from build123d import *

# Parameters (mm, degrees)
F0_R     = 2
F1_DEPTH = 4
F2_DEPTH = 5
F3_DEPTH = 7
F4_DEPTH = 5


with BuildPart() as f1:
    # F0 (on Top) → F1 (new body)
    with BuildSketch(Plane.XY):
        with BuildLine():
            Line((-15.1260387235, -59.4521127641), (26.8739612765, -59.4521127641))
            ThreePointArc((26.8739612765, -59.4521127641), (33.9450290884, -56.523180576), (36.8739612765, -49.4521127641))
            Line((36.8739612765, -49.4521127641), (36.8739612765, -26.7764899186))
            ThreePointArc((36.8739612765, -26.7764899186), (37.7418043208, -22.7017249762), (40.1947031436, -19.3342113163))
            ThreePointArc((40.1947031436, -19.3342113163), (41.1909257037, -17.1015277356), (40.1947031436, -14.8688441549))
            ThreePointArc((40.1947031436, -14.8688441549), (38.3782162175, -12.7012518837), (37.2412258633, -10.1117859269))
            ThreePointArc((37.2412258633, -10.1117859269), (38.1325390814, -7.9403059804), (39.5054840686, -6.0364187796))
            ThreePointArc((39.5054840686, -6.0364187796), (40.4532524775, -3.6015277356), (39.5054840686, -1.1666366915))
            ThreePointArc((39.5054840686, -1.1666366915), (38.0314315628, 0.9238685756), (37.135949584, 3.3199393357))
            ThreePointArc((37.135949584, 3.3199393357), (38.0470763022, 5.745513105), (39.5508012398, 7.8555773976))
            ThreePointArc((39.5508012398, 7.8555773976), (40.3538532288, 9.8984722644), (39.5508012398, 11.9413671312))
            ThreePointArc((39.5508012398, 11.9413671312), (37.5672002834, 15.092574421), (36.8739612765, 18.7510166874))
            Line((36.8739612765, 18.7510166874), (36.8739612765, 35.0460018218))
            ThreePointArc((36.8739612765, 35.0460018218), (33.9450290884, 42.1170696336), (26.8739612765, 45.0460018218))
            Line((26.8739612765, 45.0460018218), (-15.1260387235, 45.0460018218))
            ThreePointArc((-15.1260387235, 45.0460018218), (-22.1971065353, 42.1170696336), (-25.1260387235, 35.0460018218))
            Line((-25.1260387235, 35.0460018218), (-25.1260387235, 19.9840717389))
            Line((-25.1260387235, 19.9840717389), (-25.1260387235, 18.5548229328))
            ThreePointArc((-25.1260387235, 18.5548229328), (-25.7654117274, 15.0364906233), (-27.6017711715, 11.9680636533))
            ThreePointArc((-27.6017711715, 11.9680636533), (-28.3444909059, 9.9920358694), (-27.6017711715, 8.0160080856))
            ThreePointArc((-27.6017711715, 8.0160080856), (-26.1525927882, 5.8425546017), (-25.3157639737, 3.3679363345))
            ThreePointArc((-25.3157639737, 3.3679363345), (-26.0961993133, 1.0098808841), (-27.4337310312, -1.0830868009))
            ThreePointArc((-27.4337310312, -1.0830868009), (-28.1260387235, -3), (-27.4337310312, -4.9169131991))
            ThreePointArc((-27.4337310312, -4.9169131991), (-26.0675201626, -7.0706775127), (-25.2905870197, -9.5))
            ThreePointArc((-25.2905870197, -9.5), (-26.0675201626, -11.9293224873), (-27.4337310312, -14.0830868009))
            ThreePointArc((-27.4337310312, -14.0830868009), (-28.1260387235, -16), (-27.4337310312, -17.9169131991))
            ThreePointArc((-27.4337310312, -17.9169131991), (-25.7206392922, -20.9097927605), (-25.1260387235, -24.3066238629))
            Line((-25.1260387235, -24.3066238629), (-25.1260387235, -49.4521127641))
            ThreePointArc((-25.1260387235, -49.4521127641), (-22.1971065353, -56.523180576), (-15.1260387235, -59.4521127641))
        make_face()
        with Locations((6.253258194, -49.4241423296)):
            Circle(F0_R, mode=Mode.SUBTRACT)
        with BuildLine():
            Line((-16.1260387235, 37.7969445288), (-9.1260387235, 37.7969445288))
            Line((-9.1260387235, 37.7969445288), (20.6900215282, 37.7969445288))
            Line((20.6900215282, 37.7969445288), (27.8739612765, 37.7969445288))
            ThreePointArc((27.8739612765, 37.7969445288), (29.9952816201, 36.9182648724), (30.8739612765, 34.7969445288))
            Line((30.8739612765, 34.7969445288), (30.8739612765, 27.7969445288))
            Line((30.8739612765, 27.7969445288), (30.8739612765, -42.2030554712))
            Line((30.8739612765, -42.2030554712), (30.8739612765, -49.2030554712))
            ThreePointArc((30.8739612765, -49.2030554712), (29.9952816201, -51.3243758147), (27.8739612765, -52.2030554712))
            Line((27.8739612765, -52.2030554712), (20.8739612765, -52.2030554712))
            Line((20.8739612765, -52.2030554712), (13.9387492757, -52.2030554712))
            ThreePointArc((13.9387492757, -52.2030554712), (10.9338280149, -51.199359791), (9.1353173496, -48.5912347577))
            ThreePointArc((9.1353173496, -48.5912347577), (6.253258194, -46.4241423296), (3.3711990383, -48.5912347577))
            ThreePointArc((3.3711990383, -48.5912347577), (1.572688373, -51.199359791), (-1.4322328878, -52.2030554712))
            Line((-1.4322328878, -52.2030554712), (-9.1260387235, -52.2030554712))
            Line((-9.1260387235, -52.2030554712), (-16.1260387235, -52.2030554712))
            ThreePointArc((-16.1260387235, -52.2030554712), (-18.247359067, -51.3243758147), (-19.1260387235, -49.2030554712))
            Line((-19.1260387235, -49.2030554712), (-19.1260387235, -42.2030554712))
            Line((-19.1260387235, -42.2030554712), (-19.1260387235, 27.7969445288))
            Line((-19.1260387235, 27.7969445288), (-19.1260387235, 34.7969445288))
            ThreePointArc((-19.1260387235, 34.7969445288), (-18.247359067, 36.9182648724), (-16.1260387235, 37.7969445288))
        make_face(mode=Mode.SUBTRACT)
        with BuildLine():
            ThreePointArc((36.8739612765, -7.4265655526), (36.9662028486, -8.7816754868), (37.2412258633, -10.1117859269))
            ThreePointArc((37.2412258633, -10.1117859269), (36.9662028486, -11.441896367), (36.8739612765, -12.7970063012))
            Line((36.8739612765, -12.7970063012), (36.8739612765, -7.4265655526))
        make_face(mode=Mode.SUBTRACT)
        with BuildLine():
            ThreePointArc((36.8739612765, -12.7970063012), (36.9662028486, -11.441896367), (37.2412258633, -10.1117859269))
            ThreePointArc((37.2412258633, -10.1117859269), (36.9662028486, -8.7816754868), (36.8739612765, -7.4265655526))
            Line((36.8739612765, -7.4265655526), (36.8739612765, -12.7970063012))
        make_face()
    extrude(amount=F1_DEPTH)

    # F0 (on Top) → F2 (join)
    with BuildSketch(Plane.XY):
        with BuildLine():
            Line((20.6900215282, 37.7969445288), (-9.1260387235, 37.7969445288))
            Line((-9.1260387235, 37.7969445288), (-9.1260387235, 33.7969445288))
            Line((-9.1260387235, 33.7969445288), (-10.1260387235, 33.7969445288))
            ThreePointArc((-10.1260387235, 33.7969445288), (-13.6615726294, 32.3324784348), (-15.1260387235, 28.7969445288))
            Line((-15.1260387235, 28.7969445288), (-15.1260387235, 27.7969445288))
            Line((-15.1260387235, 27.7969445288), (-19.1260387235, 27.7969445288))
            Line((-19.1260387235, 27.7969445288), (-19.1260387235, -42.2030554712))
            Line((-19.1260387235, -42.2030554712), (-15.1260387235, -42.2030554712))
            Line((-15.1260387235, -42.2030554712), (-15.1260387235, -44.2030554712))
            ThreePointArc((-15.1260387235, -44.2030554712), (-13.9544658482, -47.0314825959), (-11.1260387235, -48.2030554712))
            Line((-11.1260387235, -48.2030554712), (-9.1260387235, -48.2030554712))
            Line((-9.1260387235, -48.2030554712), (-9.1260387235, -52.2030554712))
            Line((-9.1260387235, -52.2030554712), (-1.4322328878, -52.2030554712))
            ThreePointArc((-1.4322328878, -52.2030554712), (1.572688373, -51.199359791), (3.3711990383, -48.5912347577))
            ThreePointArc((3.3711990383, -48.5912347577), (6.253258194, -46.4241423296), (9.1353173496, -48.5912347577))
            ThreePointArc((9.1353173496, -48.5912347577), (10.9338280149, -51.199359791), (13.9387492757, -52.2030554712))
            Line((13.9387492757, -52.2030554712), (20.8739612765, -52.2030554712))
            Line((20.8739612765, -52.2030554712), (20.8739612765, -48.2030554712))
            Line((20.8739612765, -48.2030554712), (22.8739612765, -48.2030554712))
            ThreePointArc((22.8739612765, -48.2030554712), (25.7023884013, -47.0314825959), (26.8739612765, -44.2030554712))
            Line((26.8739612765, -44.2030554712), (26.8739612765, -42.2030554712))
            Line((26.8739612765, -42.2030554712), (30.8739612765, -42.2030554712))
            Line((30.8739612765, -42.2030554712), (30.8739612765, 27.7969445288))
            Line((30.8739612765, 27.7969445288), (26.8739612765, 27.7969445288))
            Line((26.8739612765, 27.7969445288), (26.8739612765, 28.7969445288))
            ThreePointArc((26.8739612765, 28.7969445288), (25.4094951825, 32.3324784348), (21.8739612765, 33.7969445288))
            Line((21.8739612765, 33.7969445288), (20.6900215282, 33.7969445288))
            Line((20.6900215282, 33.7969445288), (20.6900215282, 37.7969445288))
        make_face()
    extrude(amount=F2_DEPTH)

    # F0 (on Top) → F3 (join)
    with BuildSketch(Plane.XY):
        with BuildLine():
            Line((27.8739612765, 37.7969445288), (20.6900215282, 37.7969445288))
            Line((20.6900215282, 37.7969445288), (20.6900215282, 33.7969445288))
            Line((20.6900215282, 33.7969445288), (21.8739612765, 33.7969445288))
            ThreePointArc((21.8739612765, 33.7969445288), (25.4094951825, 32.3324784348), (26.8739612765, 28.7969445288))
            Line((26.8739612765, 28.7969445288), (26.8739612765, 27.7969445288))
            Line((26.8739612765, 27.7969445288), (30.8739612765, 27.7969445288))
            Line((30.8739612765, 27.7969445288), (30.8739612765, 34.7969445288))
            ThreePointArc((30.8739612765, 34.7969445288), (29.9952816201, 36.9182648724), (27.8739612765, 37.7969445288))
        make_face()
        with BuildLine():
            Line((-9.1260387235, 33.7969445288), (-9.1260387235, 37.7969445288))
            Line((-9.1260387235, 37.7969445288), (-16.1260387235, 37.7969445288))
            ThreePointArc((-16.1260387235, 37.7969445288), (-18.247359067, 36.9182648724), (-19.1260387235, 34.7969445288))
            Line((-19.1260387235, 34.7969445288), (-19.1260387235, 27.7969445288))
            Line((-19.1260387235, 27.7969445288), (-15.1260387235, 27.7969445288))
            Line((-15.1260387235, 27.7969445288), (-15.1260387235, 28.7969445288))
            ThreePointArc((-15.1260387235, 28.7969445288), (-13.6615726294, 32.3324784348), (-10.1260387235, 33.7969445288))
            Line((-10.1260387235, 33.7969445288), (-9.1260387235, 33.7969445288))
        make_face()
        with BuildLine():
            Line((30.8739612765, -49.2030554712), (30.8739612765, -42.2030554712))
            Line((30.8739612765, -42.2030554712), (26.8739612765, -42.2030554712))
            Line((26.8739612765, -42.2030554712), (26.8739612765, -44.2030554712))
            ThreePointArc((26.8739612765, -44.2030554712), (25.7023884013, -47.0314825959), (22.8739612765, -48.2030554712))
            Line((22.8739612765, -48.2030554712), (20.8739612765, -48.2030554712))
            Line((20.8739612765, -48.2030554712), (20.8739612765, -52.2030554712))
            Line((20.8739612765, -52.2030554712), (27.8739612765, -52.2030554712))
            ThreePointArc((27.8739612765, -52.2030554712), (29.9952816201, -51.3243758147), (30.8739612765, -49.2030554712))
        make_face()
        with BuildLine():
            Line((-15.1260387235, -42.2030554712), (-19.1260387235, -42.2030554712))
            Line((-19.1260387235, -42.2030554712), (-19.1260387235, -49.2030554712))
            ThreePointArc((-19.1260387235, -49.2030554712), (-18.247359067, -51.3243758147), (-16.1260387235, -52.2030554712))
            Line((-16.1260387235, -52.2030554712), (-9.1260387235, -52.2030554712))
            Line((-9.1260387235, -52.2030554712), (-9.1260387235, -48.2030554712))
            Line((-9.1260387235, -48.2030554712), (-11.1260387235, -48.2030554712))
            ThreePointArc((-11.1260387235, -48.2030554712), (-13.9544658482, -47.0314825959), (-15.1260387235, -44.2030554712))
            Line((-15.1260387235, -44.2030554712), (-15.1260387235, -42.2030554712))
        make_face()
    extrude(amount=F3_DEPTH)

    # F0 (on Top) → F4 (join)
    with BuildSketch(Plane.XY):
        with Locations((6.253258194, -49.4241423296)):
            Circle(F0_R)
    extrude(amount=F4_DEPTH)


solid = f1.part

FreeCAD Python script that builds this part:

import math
import FreeCAD as App
import Part
import Sketcher
from FreeCAD import Vector
Q = App.Units.Quantity

doc = App.newDocument("Part")
body = doc.addObject("PartDesign::Body", "Body")

# Sketch on XY plane
sketch1 = doc.addObject("Sketcher::SketchObject", "Sketch")
body.addObject(sketch1)
sketch1.AttachmentSupport = (doc.XY_Plane, [""])
sketch1.MapMode = "FlatFace"
sketch1.addGeometry([
    Part.LineSegment(Vector(-25.1, -24.3, 0), Vector(-25.1, -49.5, 0)),  # 0
    Part.ArcOfCircle(Part.Circle(Vector(-15.1, -49.5, 0), Vector(0, 0, 1), 10), math.radians(180), math.radians(270)),  # 1
    Part.LineSegment(Vector(-15.1, -59.5, 0), Vector(26.9, -59.5, 0)),  # 2
    Part.ArcOfCircle(Part.Circle(Vector(26.9, -49.5, 0), Vector(0, 0, 1), 10), math.radians(-90), math.radians(0)),  # 3
    Part.LineSegment(Vector(36.9, -49.5, 0), Vector(36.9, -26.8, 0)),  # 4
    Part.ArcOfCircle(Part.Circle(Vector(46.9, -26.8, 0), Vector(0, 0, 1), 10), math.radians(132), math.radians(180)),  # 5
    Part.ArcOfCircle(Part.Circle(Vector(38.2, -17.1, 0), Vector(0, 0, 1), 3), math.radians(-48), math.radians(48)),  # 6
    Part.ArcOfCircle(Part.Circle(Vector(46.9, -7.4, 0), Vector(0, 0, 1), 10), math.radians(-164), math.radians(-132)),  # 7
    Part.ArcOfCircle(Part.Circle(Vector(46.9, -12.8, 0), Vector(0, 0, 1), 10), math.radians(137), math.radians(164)),  # 8
    Part.ArcOfCircle(Part.Circle(Vector(36.9, -3.6, 0), Vector(0, 0, 1), 3.6), math.radians(-43), math.radians(43)),  # 9
    Part.ArcOfCircle(Part.Circle(Vector(46.9, 5.6, 0), Vector(0, 0, 1), 10), math.radians(-167), math.radians(-137)),  # 10
    Part.ArcOfCircle(Part.Circle(Vector(46.9, 1, 0), Vector(0, 0, 1), 10), math.radians(137), math.radians(167)),  # 11
    Part.ArcOfCircle(Part.Circle(Vector(37.4, 9.9, 0), Vector(0, 0, 1), 3), math.radians(-43), math.radians(43)),  # 12
    Part.ArcOfCircle(Part.Circle(Vector(46.9, 18.8, 0), Vector(0, 0, 1), 10), math.radians(-180), math.radians(-137)),  # 13
    Part.LineSegment(Vector(36.9, 18.8, 0), Vector(36.9, 35, 0)),  # 14
    Part.ArcOfCircle(Part.Circle(Vector(26.9, 35, 0), Vector(0, 0, 1), 10), math.radians(0), math.radians(90)),  # 15
    Part.LineSegment(Vector(26.9, 45, 0), Vector(-15.1, 45, 0)),  # 16
    Part.ArcOfCircle(Part.Circle(Vector(-15.1, 35, 0), Vector(0, 0, 1), 10), math.radians(90), math.radians(180)),  # 17
    Part.LineSegment(Vector(-25.1, 35, 0), Vector(-25.1, 18.6, 0)),  # 18
    Part.ArcOfCircle(Part.Circle(Vector(-35.1, 18.6, 0), Vector(0, 0, 1), 10), math.radians(-41), math.radians(0)),  # 19
    Part.ArcOfCircle(Part.Circle(Vector(-25.3, 10, 0), Vector(0, 0, 1), 3), math.radians(139), math.radians(221)),  # 20
    Part.ArcOfCircle(Part.Circle(Vector(-35.1, 1.4, 0), Vector(0, 0, 1), 10), math.radians(11), math.radians(41)),  # 21
    Part.ArcOfCircle(Part.Circle(Vector(-35.1, 5.3, 0), Vector(0, 0, 1), 10), math.radians(-40), math.radians(-11)),  # 22
    Part.ArcOfCircle(Part.Circle(Vector(-25.1, -3, 0), Vector(0, 0, 1), 3), math.radians(140), math.radians(220)),  # 23
    Part.ArcOfCircle(Part.Circle(Vector(-35.1, -11.3, 0), Vector(0, 0, 1), 10), math.radians(10), math.radians(40)),  # 24
    Part.ArcOfCircle(Part.Circle(Vector(-35.1, -7.7, 0), Vector(0, 0, 1), 10), math.radians(-40), math.radians(-10)),  # 25
    Part.ArcOfCircle(Part.Circle(Vector(-25.1, -16, 0), Vector(0, 0, 1), 3), math.radians(140), math.radians(220)),  # 26
    Part.ArcOfCircle(Part.Circle(Vector(-35.1, -24.3, 0), Vector(0, 0, 1), 10), math.radians(0), math.radians(40)),  # 27
    Part.Circle(Vector(6.3, -49.4, 0), Vector(0, 0, 1), 2),  # 28
    Part.ArcOfCircle(Part.Circle(Vector(-16.1, 34.8, 0), Vector(0, 0, 1), 3), math.radians(90), math.radians(180)),  # 29
    Part.LineSegment(Vector(-16.1, 37.8, 0), Vector(27.9, 37.8, 0)),  # 30
    Part.ArcOfCircle(Part.Circle(Vector(27.9, 34.8, 0), Vector(0, 0, 1), 3), math.radians(0), math.radians(90)),  # 31
    Part.LineSegment(Vector(30.9, 34.8, 0), Vector(30.9, -49.2, 0)),  # 32
    Part.ArcOfCircle(Part.Circle(Vector(27.9, -49.2, 0), Vector(0, 0, 1), 3), math.radians(-90), math.radians(0)),  # 33
    Part.LineSegment(Vector(27.9, -52.2, 0), Vector(13.9, -52.2, 0)),  # 34
    Part.ArcOfCircle(Part.Circle(Vector(13.9, -47.2, 0), Vector(0, 0, 1), 5), math.radians(-164), math.radians(-90)),  # 35
    Part.ArcOfCircle(Part.Circle(Vector(6.3, -49.4, 0), Vector(0, 0, 1), 3), math.radians(16), math.radians(164)),  # 36
    Part.ArcOfCircle(Part.Circle(Vector(-1.4, -47.2, 0), Vector(0, 0, 1), 5), math.radians(-90), math.radians(-16)),  # 37
    Part.LineSegment(Vector(-1.4, -52.2, 0), Vector(-16.1, -52.2, 0)),  # 38
    Part.ArcOfCircle(Part.Circle(Vector(-16.1, -49.2, 0), Vector(0, 0, 1), 3), math.radians(180), math.radians(270)),  # 39
    Part.LineSegment(Vector(-19.1, -49.2, 0), Vector(-19.1, 34.8, 0)),  # 40
], False)
sketch1.addConstraint([
    Sketcher.Constraint("Tangent", 0, 2, 1, 1),
    Sketcher.Constraint("Tangent", 1, 2, 2, 1),
    Sketcher.Constraint("Tangent", 2, 2, 3, 1),
    Sketcher.Constraint("Tangent", 3, 2, 4, 1),
    Sketcher.Constraint("Tangent", 4, 2, 5, 2),
    Sketcher.Constraint("Tangent", 5, 1, 6, 1),
    Sketcher.Constraint("Tangent", 6, 2, 7, 2),
    Sketcher.Constraint("Coincident", 7, 1, 8, 2),
    Sketcher.Constraint("Tangent", 8, 1, 9, 1),
    Sketcher.Constraint("Tangent", 9, 2, 10, 2),
    Sketcher.Constraint("Coincident", 10, 1, 11, 2),
    Sketcher.Constraint("Tangent", 11, 1, 12, 1),
    Sketcher.Constraint("Tangent", 12, 2, 13, 2),
    Sketcher.Constraint("Tangent", 13, 1, 14, 1),
    Sketcher.Constraint("Tangent", 14, 2, 15, 1),
    Sketcher.Constraint("Tangent", 15, 2, 16, 1),
    Sketcher.Constraint("Tangent", 16, 2, 17, 1),
    Sketcher.Constraint("Tangent", 17, 2, 18, 1),
    Sketcher.Constraint("Tangent", 18, 2, 19, 2),
    Sketcher.Constraint("Tangent", 19, 1, 20, 1),
    Sketcher.Constraint("Tangent", 20, 2, 21, 2),
    Sketcher.Constraint("Coincident", 21, 1, 22, 2),
    Sketcher.Constraint("Tangent", 22, 1, 23, 1),
    Sketcher.Constraint("Tangent", 23, 2, 24, 2),
    Sketcher.Constraint("Coincident", 24, 1, 25, 2),
    Sketcher.Constraint("Tangent", 25, 1, 26, 1),
    Sketcher.Constraint("Tangent", 26, 2, 27, 2),
    Sketcher.Constraint("Tangent", 27, 1, 0, 1),
    Sketcher.Constraint("Tangent", 29, 1, 30, 1),
    Sketcher.Constraint("Tangent", 30, 2, 31, 2),
    Sketcher.Constraint("Tangent", 31, 1, 32, 1),
    Sketcher.Constraint("Tangent", 32, 2, 33, 2),
    Sketcher.Constraint("Tangent", 33, 1, 34, 1),
    Sketcher.Constraint("Tangent", 34, 2, 35, 2),
    Sketcher.Constraint("Tangent", 35, 1, 36, 1),
    Sketcher.Constraint("Tangent", 36, 2, 37, 2),
    Sketcher.Constraint("Tangent", 37, 1, 38, 1),
    Sketcher.Constraint("Tangent", 38, 2, 39, 2),
    Sketcher.Constraint("Tangent", 39, 1, 40, 1),
    Sketcher.Constraint("Tangent", 40, 2, 29, 2),
    Sketcher.Constraint("Vertical", 0),
    Sketcher.Constraint("Horizontal", 2),
    Sketcher.Constraint("Vertical", 4),
    Sketcher.Constraint("Vertical", 14),
    Sketcher.Constraint("Horizontal", 16),
    Sketcher.Constraint("Vertical", 18),
    Sketcher.Constraint("Horizontal", 30),
    Sketcher.Constraint("Vertical", 32),
    Sketcher.Constraint("Horizontal", 34),
    Sketcher.Constraint("Horizontal", 38),
    Sketcher.Constraint("Vertical", 40),
    Sketcher.Constraint("Coincident", 36, 3, 28, 3),
    Sketcher.Constraint("Equal", 1, 3),
    Sketcher.Constraint("Equal", 3, 5),
    Sketcher.Constraint("Equal", 5, 7),
    Sketcher.Constraint("Equal", 7, 8),
    Sketcher.Constraint("Equal", 8, 10),
    Sketcher.Constraint("Equal", 10, 11),
    Sketcher.Constraint("Equal", 6, 12),
    Sketcher.Constraint("Equal", 11, 13),
    Sketcher.Constraint("Equal", 13, 15),
    Sketcher.Constraint("Equal", 15, 17),
    Sketcher.Constraint("Equal", 17, 19),
    Sketcher.Constraint("Equal", 12, 20),
    Sketcher.Constraint("Equal", 19, 21),
    Sketcher.Constraint("Equal", 21, 22),
    Sketcher.Constraint("Equal", 20, 23),
    Sketcher.Constraint("Equal", 22, 24),
    Sketcher.Constraint("Equal", 24, 25),
    Sketcher.Constraint("Equal", 23, 26),
    Sketcher.Constraint("Equal", 25, 27),
    Sketcher.Constraint("Equal", 26, 29),
    Sketcher.Constraint("Equal", 29, 31),
    Sketcher.Constraint("Equal", 31, 33),
    Sketcher.Constraint("Equal", 33, 36),
    Sketcher.Constraint("Equal", 35, 37),
    Sketcher.Constraint("Equal", 36, 39),
    Sketcher.Constraint("Horizontal", 35, 3, 37, 3),
    Sketcher.Constraint("Vertical", 5, 3, 7, 3),
    Sketcher.Constraint("Vertical", 7, 3, 8, 3),
    Sketcher.Constraint("Vertical", 8, 3, 10, 3),
    Sketcher.Constraint("Vertical", 10, 3, 11, 3),
    Sketcher.Constraint("Vertical", 11, 3, 13, 3),
    Sketcher.Constraint("Vertical", 1, 3, 17, 3),
    Sketcher.Constraint("Vertical", 19, 3, 21, 3),
    Sketcher.Constraint("Vertical", 21, 3, 22, 3),
    Sketcher.Constraint("Vertical", 22, 3, 24, 3),
    Sketcher.Constraint("Vertical", 24, 3, 25, 3),
    Sketcher.Constraint("Vertical", 23, 3, 26, 3),
    Sketcher.Constraint("Vertical", 26, 3, 0, 2),
    Sketcher.Constraint("Diameter", 28, Q("4 mm")),
    Sketcher.Constraint("Radius", 1, Q("10 mm")),
    Sketcher.Constraint("Radius", 6, Q("3 mm")),
    Sketcher.Constraint("Radius", 35, Q("5 mm")),
    Sketcher.Constraint("DistanceX", 2, 1, 2, 2, Q("42 mm")),
    Sketcher.Constraint("DistanceX", 30, 1, 30, 2, Q("44 mm")),
    Sketcher.Constraint("DistanceY", 32, 2, 32, 1, Q("84 mm")),
    Sketcher.Constraint("DistanceY", 23, 3, -1, 1, Q("3 mm")),
    Sketcher.Constraint("DistanceY", 26, 3, -1, 1, Q("16 mm")),
    Sketcher.Constraint("DistanceY", -1, 1, 15, 3, Q("35.046002 mm")),
    Sketcher.Constraint("Radius", 9, Q("3.601597 mm")),
    Sketcher.Constraint("DistanceY", 0, 2, 0, 1, Q("25.145489 mm")),
    Sketcher.Constraint("DistanceY", 18, 2, 18, 1, Q("16.491179 mm")),
    Sketcher.Constraint("DistanceX", -1, 1, 11, 1, Q("39.550801 mm")),
    Sketcher.Constraint("DistanceX", -1, 1, 36, 2, Q("3.371199 mm")),
    Sketcher.Constraint("DistanceX", 34, 2, 34, 1, Q("13.935212 mm")),
    Sketcher.Constraint("DistanceX", 38, 2, 38, 1, Q("14.693806 mm")),
    Sketcher.Constraint("DistanceY", 4, 1, 4, 2, Q("22.675623 mm")),
    Sketcher.Constraint("DistanceY", 14, 1, 14, 2, Q("16.294985 mm")),
    Sketcher.Constraint("DistanceX", 1, 3, -1, 1, Q("15.126039 mm")),
    Sketcher.Constraint("DistanceY", -1, 1, 10, 3, Q("5.593951 mm")),
    Sketcher.Constraint("DistanceX", 20, 3, -1, 1, Q("25.344491 mm")),
    Sketcher.Constraint("DistanceY", 5, 1, -1, 1, Q("19.334211 mm")),
    Sketcher.Constraint("DistanceY", 8, 1, -1, 1, Q("6.036419 mm")),
    Sketcher.Constraint("DistanceY", 28, 3, -1, 1, Q("49.424142 mm")),
])
pad1 = doc.addObject("PartDesign::Pad", "Pad")
body.addObject(pad1)
pad1.Profile = sketch1
pad1.Length = 4

# Sketch on XY plane
sketch2 = doc.addObject("Sketcher::SketchObject", "Sketch001")
body.addObject(sketch2)
sketch2.AttachmentSupport = (doc.XY_Plane, [""])
sketch2.MapMode = "FlatFace"
sketch2.addGeometry([
    Part.LineSegment(Vector(20.7, 37.8, 0), Vector(-9.1, 37.8, 0)),  # 0
    Part.LineSegment(Vector(-9.1, 37.8, 0), Vector(-9.1, 33.8, 0)),  # 1
    Part.LineSegment(Vector(-9.1, 33.8, 0), Vector(-10.1, 33.8, 0)),  # 2
    Part.ArcOfCircle(Part.Circle(Vector(-10.1, 28.8, 0), Vector(0, 0, 1), 5), math.radians(90), math.radians(180)),  # 3
    Part.LineSegment(Vector(-15.1, 28.8, 0), Vector(-15.1, 27.8, 0)),  # 4
    Part.LineSegment(Vector(-15.1, 27.8, 0), Vector(-19.1, 27.8, 0)),  # 5
    Part.LineSegment(Vector(-19.1, 27.8, 0), Vector(-19.1, -42.2, 0)),  # 6
    Part.LineSegment(Vector(-19.1, -42.2, 0), Vector(-15.1, -42.2, 0)),  # 7
    Part.LineSegment(Vector(-15.1, -42.2, 0), Vector(-15.1, -44.2, 0)),  # 8
    Part.ArcOfCircle(Part.Circle(Vector(-11.1, -44.2, 0), Vector(0, 0, 1), 4), math.radians(180), math.radians(270)),  # 9
    Part.LineSegment(Vector(-11.1, -48.2, 0), Vector(-9.1, -48.2, 0)),  # 10
    Part.LineSegment(Vector(-9.1, -48.2, 0), Vector(-9.1, -52.2, 0)),  # 11
    Part.LineSegment(Vector(-9.1, -52.2, 0), Vector(-1.4, -52.2, 0)),  # 12
    Part.ArcOfCircle(Part.Circle(Vector(-1.4, -47.2, 0), Vector(0, 0, 1), 5), math.radians(-90), math.radians(-16)),  # 13
    Part.ArcOfCircle(Part.Circle(Vector(6.3, -49.4, 0), Vector(0, 0, 1), 3), math.radians(16), math.radians(164)),  # 14
    Part.ArcOfCircle(Part.Circle(Vector(13.9, -47.2, 0), Vector(0, 0, 1), 5), math.radians(-164), math.radians(-90)),  # 15
    Part.LineSegment(Vector(13.9, -52.2, 0), Vector(20.9, -52.2, 0)),  # 16
    Part.LineSegment(Vector(20.9, -52.2, 0), Vector(20.9, -48.2, 0)),  # 17
    Part.LineSegment(Vector(20.9, -48.2, 0), Vector(22.9, -48.2, 0)),  # 18
    Part.ArcOfCircle(Part.Circle(Vector(22.9, -44.2, 0), Vector(0, 0, 1), 4), math.radians(-90), math.radians(0)),  # 19
    Part.LineSegment(Vector(26.9, -44.2, 0), Vector(26.9, -42.2, 0)),  # 20
    Part.LineSegment(Vector(26.9, -42.2, 0), Vector(30.9, -42.2, 0)),  # 21
    Part.LineSegment(Vector(30.9, -42.2, 0), Vector(30.9, 27.8, 0)),  # 22
    Part.LineSegment(Vector(30.9, 27.8, 0), Vector(26.9, 27.8, 0)),  # 23
    Part.LineSegment(Vector(26.9, 27.8, 0), Vector(26.9, 28.8, 0)),  # 24
    Part.ArcOfCircle(Part.Circle(Vector(21.9, 28.8, 0), Vector(0, 0, 1), 5), math.radians(0), math.radians(90)),  # 25
    Part.LineSegment(Vector(21.9, 33.8, 0), Vector(20.7, 33.8, 0)),  # 26
    Part.LineSegment(Vector(20.7, 33.8, 0), Vector(20.7, 37.8, 0)),  # 27
], False)
sketch2.addConstraint([
    Sketcher.Constraint("Coincident", 0, 2, 1, 1),
    Sketcher.Constraint("Coincident", 1, 2, 2, 1),
    Sketcher.Constraint("Tangent", 2, 2, 3, 1),
    Sketcher.Constraint("Tangent", 3, 2, 4, 1),
    Sketcher.Constraint("Coincident", 4, 2, 5, 1),
    Sketcher.Constraint("Coincident", 5, 2, 6, 1),
    Sketcher.Constraint("Coincident", 6, 2, 7, 1),
    Sketcher.Constraint("Coincident", 7, 2, 8, 1),
    Sketcher.Constraint("Tangent", 8, 2, 9, 1),
    Sketcher.Constraint("Tangent", 9, 2, 10, 1),
    Sketcher.Constraint("Coincident", 10, 2, 11, 1),
    Sketcher.Constraint("Coincident", 11, 2, 12, 1),
    Sketcher.Constraint("Tangent", 12, 2, 13, 1),
    Sketcher.Constraint("Tangent", 13, 2, 14, 2),
    Sketcher.Constraint("Tangent", 14, 1, 15, 1),
    Sketcher.Constraint("Tangent", 15, 2, 16, 1),
    Sketcher.Constraint("Coincident", 16, 2, 17, 1),
    Sketcher.Constraint("Coincident", 17, 2, 18, 1),
    Sketcher.Constraint("Tangent", 18, 2, 19, 1),
    Sketcher.Constraint("Tangent", 19, 2, 20, 1),
    Sketcher.Constraint("Coincident", 20, 2, 21, 1),
    Sketcher.Constraint("Coincident", 21, 2, 22, 1),
    Sketcher.Constraint("Coincident", 22, 2, 23, 1),
    Sketcher.Constraint("Coincident", 23, 2, 24, 1),
    Sketcher.Constraint("Tangent", 24, 2, 25, 1),
    Sketcher.Constraint("Tangent", 25, 2, 26, 1),
    Sketcher.Constraint("Coincident", 26, 2, 27, 1),
    Sketcher.Constraint("Coincident", 27, 2, 0, 1),
    Sketcher.Constraint("Horizontal", 0),
    Sketcher.Constraint("Vertical", 1),
    Sketcher.Constraint("Horizontal", 2),
    Sketcher.Constraint("Vertical", 4),
    Sketcher.Constraint("Horizontal", 5),
    Sketcher.Constraint("Vertical", 6),
    Sketcher.Constraint("Horizontal", 7),
    Sketcher.Constraint("Vertical", 8),
    Sketcher.Constraint("Horizontal", 10),
    Sketcher.Constraint("Vertical", 11),
    Sketcher.Constraint("Horizontal", 12),
    Sketcher.Constraint("Horizontal", 16),
    Sketcher.Constraint("Vertical", 17),
    Sketcher.Constraint("Horizontal", 18),
    Sketcher.Constraint("Vertical", 20),
    Sketcher.Constraint("Horizontal", 21),
    Sketcher.Constraint("Vertical", 22),
    Sketcher.Constraint("Horizontal", 23),
    Sketcher.Constraint("Vertical", 24),
    Sketcher.Constraint("Horizontal", 26),
    Sketcher.Constraint("Vertical", 27),
    Sketcher.Constraint("Equal", 3, 13),
    Sketcher.Constraint("Equal", 13, 15),
    Sketcher.Constraint("Equal", 9, 19),
    Sketcher.Constraint("Equal", 15, 25),
    Sketcher.Constraint("Horizontal", 13, 3, 15, 3),
    Sketcher.Constraint("Horizontal", 9, 3, 19, 3),
    Sketcher.Constraint("Horizontal", 3, 3, 25, 3),
    Sketcher.Constraint("Horizontal", 7, 2, 20, 2),
    Sketcher.Constraint("Horizontal", 5, 2, 22, 2),
    Sketcher.Constraint("Vertical", 4, 2, 7, 2),
    Sketcher.Constraint("Vertical", 1, 2, 10, 2),
    Sketcher.Constraint("Vertical", 20, 2, 23, 2),
    Sketcher.Constraint("Equal", 10, 18),
    Sketcher.Constraint("Equal", 7, 21),
    Sketcher.Constraint("Equal", 23, 1),
    Sketcher.Constraint("Equal", 2, 4),
    Sketcher.Constraint("Equal", 18, 8),
    Sketcher.Constraint("Equal", 1, 11),
    Sketcher.Constraint("Radius", 3, Q("5 mm")),
    Sketcher.Constraint("Radius", 9, Q("4 mm")),
    Sketcher.Constraint("Radius", 14, Q("3 mm")),
    Sketcher.Constraint("DistanceX", 2, 2, 2, 1, Q("1 mm")),
    Sketcher.Constraint("DistanceX", 5, 2, 5, 1, Q("4 mm")),
    Sketcher.Constraint("DistanceY", 6, 2, 6, 1, Q("70 mm")),
    Sketcher.Constraint("DistanceX", 9, 3, 19, 3, Q("34 mm")),
    Sketcher.Constraint("DistanceX", 0, 2, 0, 1, Q("29.81606 mm")),
    Sketcher.Constraint("DistanceX", -1, 1, 13, 2, Q("3.371199 mm")),
    Sketcher.Constraint("DistanceX", 12, 1, 12, 2, Q("7.693806 mm")),
    Sketcher.Constraint("DistanceX", 16, 1, 16, 2, Q("6.935212 mm")),
    Sketcher.Constraint("DistanceY", -1, 1, 3, 3, Q("28.796945 mm")),
])
pad2 = doc.addObject("PartDesign::Pad", "Pad001")
body.addObject(pad2)
pad2.Profile = sketch2
pad2.Length = 5

# Sketch on XY plane
sketch3 = doc.addObject("Sketcher::SketchObject", "Sketch002")
body.addObject(sketch3)
sketch3.AttachmentSupport = (doc.XY_Plane, [""])
sketch3.MapMode = "FlatFace"
sketch3.addGeometry([
    Part.LineSegment(Vector(27.9, 37.8, 0), Vector(20.7, 37.8, 0)),  # 0
    Part.LineSegment(Vector(20.7, 37.8, 0), Vector(20.7, 33.8, 0)),  # 1
    Part.LineSegment(Vector(20.7, 33.8, 0), Vector(21.9, 33.8, 0)),  # 2
    Part.ArcOfCircle(Part.Circle(Vector(21.9, 28.8, 0), Vector(0, 0, 1), 5), math.radians(0), math.radians(90)),  # 3
    Part.LineSegment(Vector(26.9, 28.8, 0), Vector(26.9, 27.8, 0)),  # 4
    Part.LineSegment(Vector(26.9, 27.8, 0), Vector(30.9, 27.8, 0)),  # 5
    Part.LineSegment(Vector(30.9, 27.8, 0), Vector(30.9, 34.8, 0)),  # 6
    Part.ArcOfCircle(Part.Circle(Vector(27.9, 34.8, 0), Vector(0, 0, 1), 3), math.radians(0), math.radians(90)),  # 7
    Part.LineSegment(Vector(-9.1, 33.8, 0), Vector(-9.1, 37.8, 0)),  # 8
    Part.LineSegment(Vector(-9.1, 37.8, 0), Vector(-16.1, 37.8, 0)),  # 9
    Part.ArcOfCircle(Part.Circle(Vector(-16.1, 34.8, 0), Vector(0, 0, 1), 3), math.radians(90), math.radians(180)),  # 10
    Part.LineSegment(Vector(-19.1, 34.8, 0), Vector(-19.1, 27.8, 0)),  # 11
    Part.LineSegment(Vector(-19.1, 27.8, 0), Vector(-15.1, 27.8, 0)),  # 12
    Part.LineSegment(Vector(-15.1, 27.8, 0), Vector(-15.1, 28.8, 0)),  # 13
    Part.ArcOfCircle(Part.Circle(Vector(-10.1, 28.8, 0), Vector(0, 0, 1), 5), math.radians(90), math.radians(180)),  # 14
    Part.LineSegment(Vector(-10.1, 33.8, 0), Vector(-9.1, 33.8, 0)),  # 15
    Part.LineSegment(Vector(30.9, -49.2, 0), Vector(30.9, -42.2, 0)),  # 16
    Part.LineSegment(Vector(30.9, -42.2, 0), Vector(26.9, -42.2, 0)),  # 17
    Part.LineSegment(Vector(26.9, -42.2, 0), Vector(26.9, -44.2, 0)),  # 18
    Part.ArcOfCircle(Part.Circle(Vector(22.9, -44.2, 0), Vector(0, 0, 1), 4), math.radians(-90), math.radians(0)),  # 19
    Part.LineSegment(Vector(22.9, -48.2, 0), Vector(20.9, -48.2, 0)),  # 20
    Part.LineSegment(Vector(20.9, -48.2, 0), Vector(20.9, -52.2, 0)),  # 21
    Part.LineSegment(Vector(20.9, -52.2, 0), Vector(27.9, -52.2, 0)),  # 22
    Part.ArcOfCircle(Part.Circle(Vector(27.9, -49.2, 0), Vector(0, 0, 1), 3), math.radians(-90), math.radians(0)),  # 23
    Part.LineSegment(Vector(-15.1, -42.2, 0), Vector(-19.1, -42.2, 0)),  # 24
    Part.LineSegment(Vector(-19.1, -42.2, 0), Vector(-19.1, -49.2, 0)),  # 25
    Part.ArcOfCircle(Part.Circle(Vector(-16.1, -49.2, 0), Vector(0, 0, 1), 3), math.radians(180), math.radians(270)),  # 26
    Part.LineSegment(Vector(-16.1, -52.2, 0), Vector(-9.1, -52.2, 0)),  # 27
    Part.LineSegment(Vector(-9.1, -52.2, 0), Vector(-9.1, -48.2, 0)),  # 28
    Part.LineSegment(Vector(-9.1, -48.2, 0), Vector(-11.1, -48.2, 0)),  # 29
    Part.ArcOfCircle(Part.Circle(Vector(-11.1, -44.2, 0), Vector(0, 0, 1), 4), math.radians(180), math.radians(270)),  # 30
    Part.LineSegment(Vector(-15.1, -44.2, 0), Vector(-15.1, -42.2, 0)),  # 31
], False)
sketch3.addConstraint([
    Sketcher.Constraint("Coincident", 0, 2, 1, 1),
    Sketcher.Constraint("Coincident", 1, 2, 2, 1),
    Sketcher.Constraint("Tangent", 2, 2, 3, 2),
    Sketcher.Constraint("Tangent", 3, 1, 4, 1),
    Sketcher.Constraint("Coincident", 4, 2, 5, 1),
    Sketcher.Constraint("Coincident", 5, 2, 6, 1),
    Sketcher.Constraint("Tangent", 6, 2, 7, 1),
    Sketcher.Constraint("Tangent", 7, 2, 0, 1),
    Sketcher.Constraint("Coincident", 8, 2, 9, 1),
    Sketcher.Constraint("Tangent", 9, 2, 10, 1),
    Sketcher.Constraint("Tangent", 10, 2, 11, 1),
    Sketcher.Constraint("Coincident", 11, 2, 12, 1),
    Sketcher.Constraint("Coincident", 12, 2, 13, 1),
    Sketcher.Constraint("Tangent", 13, 2, 14, 2),
    Sketcher.Constraint("Tangent", 14, 1, 15, 1),
    Sketcher.Constraint("Coincident", 15, 2, 8, 1),
    Sketcher.Constraint("Coincident", 16, 2, 17, 1),
    Sketcher.Constraint("Coincident", 17, 2, 18, 1),
    Sketcher.Constraint("Tangent", 18, 2, 19, 2),
    Sketcher.Constraint("Tangent", 19, 1, 20, 1),
    Sketcher.Constraint("Coincident", 20, 2, 21, 1),
    Sketcher.Constraint("Coincident", 21, 2, 22, 1),
    Sketcher.Constraint("Tangent", 22, 2, 23, 1),
    Sketcher.Constraint("Tangent", 23, 2, 16, 1),
    Sketcher.Constraint("Coincident", 24, 2, 25, 1),
    Sketcher.Constraint("Tangent", 25, 2, 26, 1),
    Sketcher.Constraint("Tangent", 26, 2, 27, 1),
    Sketcher.Constraint("Coincident", 27, 2, 28, 1),
    Sketcher.Constraint("Coincident", 28, 2, 29, 1),
    Sketcher.Constraint("Tangent", 29, 2, 30, 2),
    Sketcher.Constraint("Tangent", 30, 1, 31, 1),
    Sketcher.Constraint("Coincident", 31, 2, 24, 1),
    Sketcher.Constraint("Horizontal", 0),
    Sketcher.Constraint("Vertical", 1),
    Sketcher.Constraint("Horizontal", 2),
    Sketcher.Constraint("Vertical", 4),
    Sketcher.Constraint("Horizontal", 5),
    Sketcher.Constraint("Vertical", 6),
    Sketcher.Constraint("Vertical", 8),
    Sketcher.Constraint("Horizontal", 9),
    Sketcher.Constraint("Vertical", 11),
    Sketcher.Constraint("Horizontal", 12),
    Sketcher.Constraint("Vertical", 13),
    Sketcher.Constraint("Horizontal", 15),
    Sketcher.Constraint("Vertical", 16),
    Sketcher.Constraint("Horizontal", 17),
    Sketcher.Constraint("Vertical", 18),
    Sketcher.Constraint("Horizontal", 20),
    Sketcher.Constraint("Vertical", 21),
    Sketcher.Constraint("Horizontal", 22),
    Sketcher.Constraint("Horizontal", 24),
    Sketcher.Constraint("Vertical", 25),
    Sketcher.Constraint("Horizontal", 27),
    Sketcher.Constraint("Vertical", 28),
    Sketcher.Constraint("Horizontal", 29),
    Sketcher.Constraint("Vertical", 31),
    Sketcher.Constraint("Equal", 7, 10),
    Sketcher.Constraint("Equal", 3, 14),
    Sketcher.Constraint("Equal", 10, 23),
    Sketcher.Constraint("Equal", 23, 26),
    Sketcher.Constraint("Equal", 19, 30),
    Sketcher.Constraint("Horizontal", 7, 3, 10, 3),
    Sketcher.Constraint("Horizontal", 3, 3, 14, 3),
    Sketcher.Constraint("Horizontal", 23, 3, 26, 3),
    Sketcher.Constraint("Horizontal", 19, 3, 30, 3),
    Sketcher.Constraint("Horizontal", 5, 2, 11, 2),
    Sketcher.Constraint("Horizontal", 17, 2, 24, 2),
    Sketcher.Constraint("Vertical", 7, 3, 23, 3),
    Sketcher.Constraint("Vertical", 10, 3, 26, 3),
    Sketcher.Constraint("Vertical", 4, 2, 17, 2),
    Sketcher.Constraint("Vertical", 15, 2, 27, 2),
    Sketcher.Constraint("Vertical", 13, 2, 30, 1),
    Sketcher.Constraint("Equal", 5, 12),
    Sketcher.Constraint("Equal", 9, 22),
    Sketcher.Constraint("Equal", 24, 1),
    Sketcher.Constraint("Equal", 15, 4),
    Sketcher.Constraint("Equal", 11, 16),
    Sketcher.Constraint("Equal", 29, 18),
    Sketcher.Constraint("Radius", 3, Q("5 mm")),
    Sketcher.Constraint("Radius", 7, Q("3 mm")),
    Sketcher.Constraint("Radius", 19, Q("4 mm")),
    Sketcher.Constraint("DistanceX", 5, 1, 5, 2, Q("4 mm")),
    Sketcher.Constraint("DistanceX", 9, 2, 9, 1, Q("7 mm")),
    Sketcher.Constraint("DistanceX", 10, 3, 3, 3, Q("38 mm")),
    Sketcher.Constraint("DistanceY", 19, 3, 3, 3, Q("73 mm")),
    Sketcher.Constraint("DistanceX", 0, 2, 0, 1, Q("7.18394 mm")),
    Sketcher.Constraint("DistanceX", -1, 1, 3, 3, Q("21.873961 mm")),
    Sketcher.Constraint("DistanceY", -1, 1, 3, 3, Q("28.796945 mm")),
])
pad3 = doc.addObject("PartDesign::Pad", "Pad002")
body.addObject(pad3)
pad3.Profile = sketch3
pad3.Length = 7

# Sketch on XY plane
sketch4 = doc.addObject("Sketcher::SketchObject", "Sketch003")
body.addObject(sketch4)
sketch4.AttachmentSupport = (doc.XY_Plane, [""])
sketch4.MapMode = "FlatFace"
sketch4.addGeometry(Part.Circle(Vector(6.3, -49.4, 0), Vector(0, 0, 1), 2), False)
sketch4.addConstraint([
    Sketcher.Constraint("Diameter", 0, Q("4 mm")),
    Sketcher.Constraint("DistanceX", -1, 1, 0, 3, Q("6.253258 mm")),
    Sketcher.Constraint("DistanceY", 0, 3, -1, 1, Q("49.424142 mm")),
])
pad4 = doc.addObject("PartDesign::Pad", "Pad003")
body.addObject(pad4)
pad4.Profile = sketch4
pad4.Length = 5

doc.recompute()
